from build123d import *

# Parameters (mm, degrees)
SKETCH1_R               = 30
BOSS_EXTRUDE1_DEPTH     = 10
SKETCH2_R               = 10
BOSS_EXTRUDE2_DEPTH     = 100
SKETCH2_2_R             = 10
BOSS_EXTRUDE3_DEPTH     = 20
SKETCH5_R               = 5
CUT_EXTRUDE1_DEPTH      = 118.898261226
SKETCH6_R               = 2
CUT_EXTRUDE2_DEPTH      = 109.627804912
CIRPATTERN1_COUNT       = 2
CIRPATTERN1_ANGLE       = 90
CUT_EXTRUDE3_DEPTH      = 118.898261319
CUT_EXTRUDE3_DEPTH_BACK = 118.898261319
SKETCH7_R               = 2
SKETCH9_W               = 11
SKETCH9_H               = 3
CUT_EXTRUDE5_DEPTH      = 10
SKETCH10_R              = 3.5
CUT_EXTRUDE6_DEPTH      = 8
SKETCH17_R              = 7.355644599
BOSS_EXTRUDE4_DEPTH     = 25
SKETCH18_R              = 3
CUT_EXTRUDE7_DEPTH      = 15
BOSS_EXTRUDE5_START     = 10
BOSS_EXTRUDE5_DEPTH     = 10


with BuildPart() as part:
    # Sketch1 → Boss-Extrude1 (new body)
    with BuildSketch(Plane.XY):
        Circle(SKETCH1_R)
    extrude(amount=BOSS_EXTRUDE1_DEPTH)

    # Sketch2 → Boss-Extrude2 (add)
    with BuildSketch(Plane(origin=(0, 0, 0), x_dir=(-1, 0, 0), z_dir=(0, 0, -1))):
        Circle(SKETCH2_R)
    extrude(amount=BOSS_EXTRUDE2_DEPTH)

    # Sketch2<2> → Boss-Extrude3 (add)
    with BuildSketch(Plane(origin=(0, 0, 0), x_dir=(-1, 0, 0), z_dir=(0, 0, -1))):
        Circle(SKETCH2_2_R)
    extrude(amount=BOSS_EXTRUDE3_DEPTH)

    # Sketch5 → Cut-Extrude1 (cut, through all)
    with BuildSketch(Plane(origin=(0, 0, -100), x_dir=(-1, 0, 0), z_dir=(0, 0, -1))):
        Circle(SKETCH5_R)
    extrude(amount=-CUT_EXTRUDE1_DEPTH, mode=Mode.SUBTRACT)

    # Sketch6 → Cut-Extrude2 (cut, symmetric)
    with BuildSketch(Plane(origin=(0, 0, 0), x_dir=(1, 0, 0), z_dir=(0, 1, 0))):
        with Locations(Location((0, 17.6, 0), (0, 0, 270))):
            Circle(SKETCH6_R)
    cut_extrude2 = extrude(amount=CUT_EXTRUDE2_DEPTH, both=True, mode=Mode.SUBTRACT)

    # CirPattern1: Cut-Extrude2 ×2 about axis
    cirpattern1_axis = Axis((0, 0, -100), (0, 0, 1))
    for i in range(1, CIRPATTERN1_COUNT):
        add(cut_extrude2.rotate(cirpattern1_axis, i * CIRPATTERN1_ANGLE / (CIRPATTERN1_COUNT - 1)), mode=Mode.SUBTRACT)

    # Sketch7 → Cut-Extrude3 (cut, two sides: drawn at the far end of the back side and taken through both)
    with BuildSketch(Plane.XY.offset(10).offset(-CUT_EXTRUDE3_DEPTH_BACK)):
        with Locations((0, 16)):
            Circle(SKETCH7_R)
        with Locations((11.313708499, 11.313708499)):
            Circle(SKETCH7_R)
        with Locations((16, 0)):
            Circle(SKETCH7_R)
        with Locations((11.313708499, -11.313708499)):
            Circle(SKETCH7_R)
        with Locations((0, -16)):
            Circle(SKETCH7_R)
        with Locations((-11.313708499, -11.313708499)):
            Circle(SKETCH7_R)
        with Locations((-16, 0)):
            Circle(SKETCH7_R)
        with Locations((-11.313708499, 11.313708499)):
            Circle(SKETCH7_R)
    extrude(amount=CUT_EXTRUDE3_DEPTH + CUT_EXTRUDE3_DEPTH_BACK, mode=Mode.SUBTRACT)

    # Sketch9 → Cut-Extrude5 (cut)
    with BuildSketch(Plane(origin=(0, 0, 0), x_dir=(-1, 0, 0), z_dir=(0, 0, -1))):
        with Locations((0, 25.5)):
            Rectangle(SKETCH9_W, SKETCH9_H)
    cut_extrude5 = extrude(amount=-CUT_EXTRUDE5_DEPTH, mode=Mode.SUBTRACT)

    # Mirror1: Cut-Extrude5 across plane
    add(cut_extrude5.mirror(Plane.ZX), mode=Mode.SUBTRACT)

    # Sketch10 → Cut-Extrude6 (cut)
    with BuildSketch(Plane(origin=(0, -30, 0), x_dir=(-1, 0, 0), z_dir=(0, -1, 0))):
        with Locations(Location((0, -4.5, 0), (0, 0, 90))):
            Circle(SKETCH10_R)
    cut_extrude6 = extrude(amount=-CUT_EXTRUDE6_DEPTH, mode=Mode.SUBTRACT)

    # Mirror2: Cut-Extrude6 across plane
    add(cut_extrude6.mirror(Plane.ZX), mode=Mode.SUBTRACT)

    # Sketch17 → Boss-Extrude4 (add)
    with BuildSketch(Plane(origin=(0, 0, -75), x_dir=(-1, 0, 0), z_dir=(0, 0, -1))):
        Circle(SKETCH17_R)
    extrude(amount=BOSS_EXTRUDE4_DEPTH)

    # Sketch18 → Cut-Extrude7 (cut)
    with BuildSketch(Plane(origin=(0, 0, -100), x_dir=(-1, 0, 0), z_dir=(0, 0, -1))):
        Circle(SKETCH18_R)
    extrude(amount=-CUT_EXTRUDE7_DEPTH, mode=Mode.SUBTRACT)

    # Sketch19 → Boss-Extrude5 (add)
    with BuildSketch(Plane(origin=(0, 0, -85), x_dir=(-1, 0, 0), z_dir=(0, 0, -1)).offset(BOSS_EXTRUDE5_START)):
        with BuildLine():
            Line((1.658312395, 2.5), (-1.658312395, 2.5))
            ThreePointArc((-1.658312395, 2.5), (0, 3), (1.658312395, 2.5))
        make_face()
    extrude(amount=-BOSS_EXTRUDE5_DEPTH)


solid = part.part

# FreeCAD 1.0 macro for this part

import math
import FreeCAD as App
import Part
import Sketcher

V = App.Vector


def add_polygon(sketch, points):
    """Adds a closed chain of lines whose ends are joined by coincident constraints."""
    first, n = sketch.GeometryCount, len(points)
    for a, b in zip(points, points[1:] + points[:1]):
        sketch.addGeometry(Part.LineSegment(App.Vector(*a, 0), App.Vector(*b, 0)), False)
    for i in range(n):
        sketch.addConstraint(Sketcher.Constraint("Coincident", first + i, 2, first + (i + 1) % n, 1))

doc = App.newDocument("Part")
body = doc.addObject("PartDesign::Body", "Body")

sketch1 = body.newObject("Sketcher::SketchObject", "Sketch")
sketch1.AttachmentSupport = (doc.getObject("XY_Plane"), [""])
sketch1.MapMode = "FlatFace"
sketch1.addGeometry(Part.Circle(V(0, 0, 0), V(0, 0, 1), 30), False)
sketch1.addConstraint([
    Sketcher.Constraint("Coincident", 0, 3, -1, 1),
    Sketcher.Constraint("Diameter", 0, 60.0),
])
pad1 = body.newObject("PartDesign::Pad", "Pad")
pad1.Profile = sketch1
pad1.Length = 10

sketch2 = body.newObject("Sketcher::SketchObject", "Sketch001")
sketch2.AttachmentSupport = (doc.getObject("XY_Plane"), [""])
sketch2.MapMode = "FlatFace"
sketch2.addGeometry(Part.Circle(V(0, 0, 0), V(0, 0, 1), 10), False)
sketch2.addConstraint([
    Sketcher.Constraint("Coincident", 0, 3, -1, 1),
    Sketcher.Constraint("Diameter", 0, 20.0),
])
pad2 = body.newObject("PartDesign::Pad", "Pad001")
pad2.Profile = sketch2
pad2.Length = 100
pad2.Reversed = True

sketch3 = body.newObject("Sketcher::SketchObject", "Sketch002")
sketch3.AttachmentSupport = (doc.getObject("XY_Plane"), [""])
sketch3.MapMode = "FlatFace"
sketch3.addGeometry(Part.Circle(V(0, 0, 0), V(0, 0, 1), 10), False)
sketch3.addConstraint([
    Sketcher.Constraint("Coincident", 0, 3, -1, 1),
    Sketcher.Constraint("Diameter", 0, 20.0),
])
pad3 = body.newObject("PartDesign::Pad", "Pad002")
pad3.Profile = sketch3
pad3.Length = 20
pad3.Reversed = True

sketch4 = body.newObject("Sketcher::SketchObject", "Sketch003")
sketch4.AttachmentSupport = (doc.getObject("XY_Plane"), [""])
sketch4.MapMode = "FlatFace"
sketch4.AttachmentOffset = App.Placement(V(0, 0, -100), App.Rotation())
sketch4.addGeometry(Part.Circle(V(0, 0, 0), V(0, 0, 1), 5), False)
sketch4.addConstraint([
    Sketcher.Constraint("Coincident", 0, 3, -1, 1),
    Sketcher.Constraint("Diameter", 0, 10.0),
])
pocket1 = body.newObject("PartDesign::Pocket", "Pocket")
pocket1.Profile = sketch4
pocket1.Type = "ThroughAll"
pocket1.Reversed = True

sketch5 = body.newObject("Sketcher::SketchObject", "Sketch004")
sketch5.AttachmentSupport = (doc.getObject("XZ_Plane"), [""])
sketch5.MapMode = "FlatFace"
sketch5.addGeometry(Part.Circle(V(0, -17.6, 0), V(0, 0, 1), 2), False)
sketch5.addConstraint([
    Sketcher.Constraint("PointOnObject", 0, 3, -2),
    Sketcher.Constraint("Diameter", 0, 4.0),
    Sketcher.Constraint("DistanceY", 0, 3, -1, 1, 17.6),
])
pocket2 = body.newObject("PartDesign::Pocket", "Pocket001")
pocket2.Profile = sketch5
pocket2.Length = 219.25561
pocket2.Midplane = True
doc.recompute()

polarpattern = body.newObject("PartDesign::PolarPattern", "PolarPattern")
polarpattern.Originals = [pocket2]
polarpattern.Axis = (doc.getObject("Z_Axis"), [""])
polarpattern.Angle = 90
polarpattern.Occurrences = 2
body.Tip = polarpattern

sketch6 = body.newObject("Sketcher::SketchObject", "Sketch005")
sketch6.AttachmentSupport = (doc.getObject("XY_Plane"), [""])
sketch6.MapMode = "FlatFace"
sketch6.AttachmentOffset = App.Placement(V(0, 0, 10), App.Rotation())
sketch6.addGeometry([
    Part.Circle(V(0, 16, 0), V(0, 0, 1), 2),
    Part.Circle(V(11.313708, 11.313708, 0), V(0, 0, 1), 2),
    Part.Circle(V(16, 0, 0), V(0, 0, 1), 2),
    Part.Circle(V(11.313708, -11.313708, 0), V(0, 0, 1), 2),
    Part.Circle(V(0, -16, 0), V(0, 0, 1), 2),
    Part.Circle(V(-11.313708, -11.313708, 0), V(0, 0, 1), 2),
    Part.Circle(V(-16, 0, 0), V(0, 0, 1), 2),
    Part.Circle(V(-11.313708, 11.313708, 0), V(0, 0, 1), 2),
], False)
sketch6.addConstraint([
    Sketcher.Constraint("Equal", 0, 1),
    Sketcher.Constraint("Equal", 1, 2),
    Sketcher.Constraint("Equal", 2, 3),
    Sketcher.Constraint("Equal", 3, 4),
    Sketcher.Constraint("Equal", 4, 5),
    Sketcher.Constraint("Equal", 5, 6),
    Sketcher.Constraint("Equal", 6, 7),
    Sketcher.Constraint("Symmetric", 0, 3, 4, 3, -1, 1),
    Sketcher.Constraint("Symmetric", 1, 3, 5, 3, -1, 1),
    Sketcher.Constraint("Symmetric", 2, 3, 6, 3, -1, 1),
    Sketcher.Constraint("Symmetric", 3, 3, 7, 3, -1, 1),
    Sketcher.Constraint("Symmetric", 3, 3, 5, 3, -2),
    Sketcher.Constraint("PointOnObject", 0, 3, -2),
    Sketcher.Constraint("PointOnObject", 2, 3, -1),
    Sketcher.Constraint("Diameter", 0, 4.0),
    Sketcher.Constraint("DistanceY", -1, 1, 0, 3, 16.0),
    Sketcher.Constraint("DistanceX", -1, 1, 2, 3, 16.0),
    Sketcher.Constraint("DistanceX", -1, 1, 1, 3, 11.313708),
    Sketcher.Constraint("DistanceY", -1, 1, 1, 3, 11.313708),
])
pocket3 = body.newObject("PartDesign::Pocket", "Pocket002")
pocket3.Profile = sketch6
pocket3.Type = "ThroughAll"
pocket3.Midplane = True

sketch7 = body.newObject("Sketcher::SketchObject", "Sketch006")
sketch7.AttachmentSupport = (doc.getObject("XY_Plane"), [""])
sketch7.MapMode = "FlatFace"
add_polygon(sketch7, [(5.5, 27), (5.5, 24), (-5.5, 24), (-5.5, 27)])
sketch7.addConstraint([
    Sketcher.Constraint("Vertical", 0),
    Sketcher.Constraint("Horizontal", 1),
    Sketcher.Constraint("Vertical", 2),
    Sketcher.Constraint("Horizontal", 3),
    Sketcher.Constraint("DistanceX", 1, 2, 1, 1, 11.0),
    Sketcher.Constraint("DistanceY", 0, 2, 0, 1, 3.0),
    Sketcher.Constraint("DistanceY", -1, 1, 0, 2, 24.0),
    Sketcher.Constraint("DistanceX", -1, 1, 0, 2, 5.5),
])
pocket4 = body.newObject("PartDesign::Pocket", "Pocket003")
pocket4.Profile = sketch7
pocket4.Length = 10
pocket4.Reversed = True
doc.recompute()

mirrored = body.newObject("PartDesign::Mirrored", "Mirrored")
mirrored.Originals = [pocket4]
mirrored.MirrorPlane = (doc.getObject("XZ_Plane"), [""])
body.Tip = mirrored

sketch8 = body.newObject("Sketcher::SketchObject", "Sketch007")
sketch8.AttachmentSupport = (doc.getObject("XZ_Plane"), [""])
sketch8.MapMode = "FlatFace"
sketch8.AttachmentOffset = App.Placement(V(0, 0, 30), App.Rotation())
sketch8.addGeometry(Part.Circle(V(0, 4.5, 0), V(0, 0, 1), 3.5), False)
sketch8.addConstraint([
    Sketcher.Constraint("PointOnObject", 0, 3, -2),
    Sketcher.Constraint("Diameter", 0, 7.0),
    Sketcher.Constraint("DistanceY", -1, 1, 0, 3, 4.5),
])
pocket5 = body.newObject("PartDesign::Pocket", "Pocket004")
pocket5.Profile = sketch8
pocket5.Length = 8
doc.recompute()

mirrored2 = body.newObject("PartDesign::Mirrored", "Mirrored001")
mirrored2.Originals = [pocket5]
mirrored2.MirrorPlane = (doc.getObject("XZ_Plane"), [""])
body.Tip = mirrored2

sketch9 = body.newObject("Sketcher::SketchObject", "Sketch008")
sketch9.AttachmentSupport = (doc.getObject("XY_Plane"), [""])
sketch9.MapMode = "FlatFace"
sketch9.AttachmentOffset = App.Placement(V(0, 0, -75), App.Rotation())
sketch9.addGeometry(Part.Circle(V(0, 0, 0), V(0, 0, 1), 7.355645), False)
sketch9.addConstraint([
    Sketcher.Constraint("Coincident", 0, 3, -1, 1),
    Sketcher.Constraint("Diameter", 0, 14.711289),
])
pad4 = body.newObject("PartDesign::Pad", "Pad003")
pad4.Profile = sketch9
pad4.Length = 25
pad4.Reversed = True

sketch10 = body.newObject("Sketcher::SketchObject", "Sketch009")
sketch10.AttachmentSupport = (doc.getObject("XY_Plane"), [""])
sketch10.MapMode = "FlatFace"
sketch10.AttachmentOffset = App.Placement(V(0, 0, -100), App.Rotation())
sketch10.addGeometry(Part.Circle(V(0, 0, 0), V(0, 0, 1), 3), False)
sketch10.addConstraint([
    Sketcher.Constraint("Coincident", 0, 3, -1, 1),
    Sketcher.Constraint("Diameter", 0, 6.0),
])
pocket6 = body.newObject("PartDesign::Pocket", "Pocket005")
pocket6.Profile = sketch10
pocket6.Length = 15
pocket6.Reversed = True

sketch11 = body.newObject("Sketcher::SketchObject", "Sketch010")
sketch11.AttachmentSupport = (doc.getObject("XY_Plane"), [""])
sketch11.MapMode = "FlatFace"
sketch11.AttachmentOffset = App.Placement(V(0, 0, -95), App.Rotation())
sketch11.addGeometry([
    Part.LineSegment(V(1.658312, 2.5, 0), V(-1.658312, 2.5, 0)),
    Part.ArcOfCircle(Part.Circle(V(0, 0, 0), V(0, 0, 1), 3), math.radians(56.44269), math.radians(123.55731)),
], False)
sketch11.addConstraint([
    Sketcher.Constraint("Coincident", 0, 1, 1, 1),
    Sketcher.Constraint("Coincident", 1, 2, 0, 2),
    Sketcher.Constraint("Horizontal", 0),
    Sketcher.Constraint("Coincident", 1, 3, -1, 1),
    Sketcher.Constraint("Radius", 1, 3.0),
    Sketcher.Constraint("DistanceY", -1, 1, 0, 1, 2.5),
])
pad5 = body.newObject("PartDesign::Pad", "Pad004")
pad5.Profile = sketch11
pad5.Length = 10

doc.recompute()
